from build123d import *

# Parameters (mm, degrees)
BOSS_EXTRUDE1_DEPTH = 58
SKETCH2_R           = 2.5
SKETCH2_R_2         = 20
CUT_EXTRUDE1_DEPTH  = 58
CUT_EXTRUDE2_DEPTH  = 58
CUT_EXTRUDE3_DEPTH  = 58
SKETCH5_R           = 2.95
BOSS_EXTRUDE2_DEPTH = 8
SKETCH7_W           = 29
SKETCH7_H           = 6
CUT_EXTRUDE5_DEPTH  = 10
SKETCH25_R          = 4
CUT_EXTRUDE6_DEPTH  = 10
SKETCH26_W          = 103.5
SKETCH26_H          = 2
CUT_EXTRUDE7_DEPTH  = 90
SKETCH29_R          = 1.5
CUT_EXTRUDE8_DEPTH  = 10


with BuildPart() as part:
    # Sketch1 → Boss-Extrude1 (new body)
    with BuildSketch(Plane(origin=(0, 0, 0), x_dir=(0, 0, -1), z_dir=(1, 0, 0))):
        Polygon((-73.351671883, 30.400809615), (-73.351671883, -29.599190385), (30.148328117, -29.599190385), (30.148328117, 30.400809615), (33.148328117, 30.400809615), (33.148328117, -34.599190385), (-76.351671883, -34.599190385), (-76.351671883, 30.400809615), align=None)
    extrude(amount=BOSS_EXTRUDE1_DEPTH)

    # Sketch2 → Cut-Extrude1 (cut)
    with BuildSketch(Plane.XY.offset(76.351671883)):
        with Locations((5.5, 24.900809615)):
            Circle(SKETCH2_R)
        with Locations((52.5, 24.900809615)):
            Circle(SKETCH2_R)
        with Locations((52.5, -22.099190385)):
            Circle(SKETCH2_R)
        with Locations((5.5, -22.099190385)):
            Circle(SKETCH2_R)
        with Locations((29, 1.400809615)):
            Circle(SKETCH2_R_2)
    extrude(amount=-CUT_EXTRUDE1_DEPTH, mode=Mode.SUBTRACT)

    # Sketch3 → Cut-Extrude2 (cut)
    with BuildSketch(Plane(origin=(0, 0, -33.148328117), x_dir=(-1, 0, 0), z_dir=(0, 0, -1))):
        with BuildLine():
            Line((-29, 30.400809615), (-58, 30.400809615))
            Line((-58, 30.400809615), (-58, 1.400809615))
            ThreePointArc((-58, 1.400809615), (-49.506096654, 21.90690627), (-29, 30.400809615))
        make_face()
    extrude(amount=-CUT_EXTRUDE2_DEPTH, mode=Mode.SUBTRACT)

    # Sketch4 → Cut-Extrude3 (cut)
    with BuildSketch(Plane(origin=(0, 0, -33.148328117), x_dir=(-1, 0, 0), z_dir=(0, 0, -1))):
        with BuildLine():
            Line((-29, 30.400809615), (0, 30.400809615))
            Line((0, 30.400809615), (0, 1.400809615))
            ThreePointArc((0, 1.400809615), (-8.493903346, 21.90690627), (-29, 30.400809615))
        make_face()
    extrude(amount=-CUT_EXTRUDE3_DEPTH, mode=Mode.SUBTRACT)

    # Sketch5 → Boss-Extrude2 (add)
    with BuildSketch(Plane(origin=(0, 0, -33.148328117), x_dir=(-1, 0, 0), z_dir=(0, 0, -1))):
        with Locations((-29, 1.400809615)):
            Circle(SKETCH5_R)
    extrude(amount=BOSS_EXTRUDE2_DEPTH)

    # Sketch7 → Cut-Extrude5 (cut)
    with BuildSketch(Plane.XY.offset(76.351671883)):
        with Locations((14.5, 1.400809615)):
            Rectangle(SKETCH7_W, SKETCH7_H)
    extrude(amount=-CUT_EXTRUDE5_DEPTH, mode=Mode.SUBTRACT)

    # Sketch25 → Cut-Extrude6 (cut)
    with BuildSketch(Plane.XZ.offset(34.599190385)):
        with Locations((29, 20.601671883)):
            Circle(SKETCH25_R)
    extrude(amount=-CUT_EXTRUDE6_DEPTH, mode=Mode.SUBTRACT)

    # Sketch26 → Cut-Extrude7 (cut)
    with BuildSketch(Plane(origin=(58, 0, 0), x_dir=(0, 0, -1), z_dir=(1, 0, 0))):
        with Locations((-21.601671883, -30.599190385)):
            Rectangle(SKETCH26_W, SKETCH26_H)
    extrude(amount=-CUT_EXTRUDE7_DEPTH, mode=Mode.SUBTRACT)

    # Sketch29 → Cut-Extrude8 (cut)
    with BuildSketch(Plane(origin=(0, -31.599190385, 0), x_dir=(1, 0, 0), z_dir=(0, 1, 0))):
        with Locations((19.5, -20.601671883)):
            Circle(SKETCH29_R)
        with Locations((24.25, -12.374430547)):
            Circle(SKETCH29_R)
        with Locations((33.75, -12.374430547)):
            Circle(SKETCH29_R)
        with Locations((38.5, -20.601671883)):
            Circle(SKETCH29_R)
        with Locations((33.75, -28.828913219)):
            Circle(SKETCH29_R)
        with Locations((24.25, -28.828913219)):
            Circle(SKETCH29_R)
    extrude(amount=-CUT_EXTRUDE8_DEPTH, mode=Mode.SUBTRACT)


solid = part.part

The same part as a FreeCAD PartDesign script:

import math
import FreeCAD as App
import Part
import Sketcher
from FreeCAD import Vector
Q = App.Units.Quantity

doc = App.newDocument("Part")
body = doc.addObject("PartDesign::Body", "Body")

# Sketch on YZ plane
sketch1 = body.newObject("Sketcher::SketchObject", "Sketch")
sketch1.AttachmentSupport = (doc.getObject("YZ_Plane"), [""])
sketch1.MapMode = "FlatFace"
sketch1.addGeometry([
    Part.LineSegment(Vector(-29.59919, 73.351672, 0), Vector(30.40081, 73.351672, 0)),  # 0
    Part.LineSegment(Vector(30.40081, 73.351672, 0), Vector(30.40081, 76.351672, 0)),  # 1
    Part.LineSegment(Vector(30.40081, 76.351672, 0), Vector(-34.59919, 76.351672, 0)),  # 2
    Part.LineSegment(Vector(-34.59919, 76.351672, 0), Vector(-34.59919, -33.148328, 0)),  # 3
    Part.LineSegment(Vector(-34.59919, -33.148328, 0), Vector(30.40081, -33.148328, 0)),  # 4
    Part.LineSegment(Vector(30.40081, -33.148328, 0), Vector(30.40081, -30.148328, 0)),  # 5
    Part.LineSegment(Vector(30.40081, -30.148328, 0), Vector(-29.59919, -30.148328, 0)),  # 6
    Part.LineSegment(Vector(-29.59919, -30.148328, 0), Vector(-29.59919, 73.351672, 0)),  # 7
], False)
sketch1.addConstraint([
    Sketcher.Constraint("Coincident", 0, 2, 1, 1),
    Sketcher.Constraint("Coincident", 1, 2, 2, 1),
    Sketcher.Constraint("Coincident", 2, 2, 3, 1),
    Sketcher.Constraint("Coincident", 3, 2, 4, 1),
    Sketcher.Constraint("Coincident", 4, 2, 5, 1),
    Sketcher.Constraint("Coincident", 5, 2, 6, 1),
    Sketcher.Constraint("Coincident", 6, 2, 7, 1),
    Sketcher.Constraint("Coincident", 7, 2, 0, 1),
    Sketcher.Constraint("Horizontal", 0),
    Sketcher.Constraint("Vertical", 1),
    Sketcher.Constraint("Horizontal", 2),
    Sketcher.Constraint("Vertical", 3),
    Sketcher.Constraint("Horizontal", 4),
    Sketcher.Constraint("Vertical", 5),
    Sketcher.Constraint("Horizontal", 6),
    Sketcher.Constraint("Vertical", 7),
    Sketcher.Constraint("Vertical", 1, 2, 4, 2),
    Sketcher.Constraint("Equal", 1, 5),
    Sketcher.Constraint("DistanceX", 0, 1, 0, 2, Q("60 mm")),
    Sketcher.Constraint("DistanceX", 2, 2, 2, 1, Q("65 mm")),
    Sketcher.Constraint("DistanceY", 1, 1, 1, 2, Q("3 mm")),
    Sketcher.Constraint("DistanceY", 3, 2, 3, 1, Q("109.5 mm")),
    Sketcher.Constraint("DistanceX", -1, 1, 0, 2, Q("30.40081 mm")),
    Sketcher.Constraint("DistanceY", -1, 1, 0, 2, Q("73.351672 mm")),
])
pad1 = body.newObject("PartDesign::Pad", "Pad")
pad1.Profile = sketch1
pad1.Length = 58

# Sketch on XY plane
sketch2 = body.newObject("Sketcher::SketchObject", "Sketch001")
sketch2.AttachmentSupport = (doc.getObject("XY_Plane"), [""])
sketch2.MapMode = "FlatFace"
sketch2.AttachmentOffset = App.Placement(Vector(0, 0, 76.351672), App.Rotation())
sketch2.addGeometry([
    Part.Circle(Vector(5.5, 24.90081, 0), Vector(0, 0, 1), 2.5),  # 0
    Part.Circle(Vector(52.5, 24.90081, 0), Vector(0, 0, 1), 2.5),  # 1
    Part.Circle(Vector(52.5, -22.09919, 0), Vector(0, 0, 1), 2.5),  # 2
    Part.Circle(Vector(5.5, -22.09919, 0), Vector(0, 0, 1), 2.5),  # 3
    Part.Circle(Vector(29, 1.40081, 0), Vector(0, 0, 1), 20),  # 4
], False)
sketch2.addConstraint([
    Sketcher.Constraint("Equal", 0, 1),
    Sketcher.Constraint("Equal", 1, 2),
    Sketcher.Constraint("Equal", 2, 3),
    Sketcher.Constraint("Horizontal", 0, 3, 1, 3),
    Sketcher.Constraint("Horizontal", 2, 3, 3, 3),
    Sketcher.Constraint("Vertical", 1, 3, 2, 3),
    Sketcher.Constraint("Vertical", 0, 3, 3, 3),
    Sketcher.Constraint("Diameter", 0, Q("5 mm")),
    Sketcher.Constraint("Diameter", 4, Q("40 mm")),
    Sketcher.Constraint("DistanceX", -1, 1, 4, 3, Q("29 mm")),
    Sketcher.Constraint("DistanceX", 0, 3, 1, 3, Q("47 mm")),
    Sketcher.Constraint("DistanceY", 2, 3, 1, 3, Q("47 mm")),
    Sketcher.Constraint("DistanceX", -1, 1, 0, 3, Q("5.5 mm")),
    Sketcher.Constraint("DistanceY", 4, 3, 0, 3, Q("23.5 mm")),
    Sketcher.Constraint("DistanceY", -1, 1, 0, 3, Q("24.90081 mm")),
])
pocket1 = body.newObject("PartDesign::Pocket", "Pocket")
pocket1.Profile = sketch2
pocket1.Length = 58

# Sketch on XY plane
sketch3 = body.newObject("Sketcher::SketchObject", "Sketch002")
sketch3.AttachmentSupport = (doc.getObject("XY_Plane"), [""])
sketch3.MapMode = "FlatFace"
sketch3.AttachmentOffset = App.Placement(Vector(0, 0, -33.148328), App.Rotation())
sketch3.addGeometry([
    Part.LineSegment(Vector(29, 30.40081, 0), Vector(58, 30.40081, 0)),
    Part.LineSegment(Vector(58, 30.40081, 0), Vector(58, 1.40081, 0)),
    Part.ArcOfCircle(Part.Circle(Vector(29, 1.40081, 0), Vector(0, 0, 1), 29), math.radians(0), math.radians(90)),
], False)
sketch3.addConstraint([
    Sketcher.Constraint("Coincident", 0, 2, 1, 1),
    Sketcher.Constraint("Tangent", 1, 2, 2, 1),
    Sketcher.Constraint("Tangent", 2, 2, 0, 1),
    Sketcher.Constraint("Horizontal", 0),
    Sketcher.Constraint("Vertical", 1),
    Sketcher.Constraint("Radius", 2, Q("29 mm")),
    Sketcher.Constraint("DistanceX", -1, 1, 2, 3, Q("29 mm")),
    Sketcher.Constraint("DistanceY", -1, 1, 2, 3, Q("1.40081 mm")),
])
pocket2 = body.newObject("PartDesign::Pocket", "Pocket001")
pocket2.Profile = sketch3
pocket2.Length = 58
pocket2.Reversed = True

# Sketch on XY plane
sketch4 = body.newObject("Sketcher::SketchObject", "Sketch003")
sketch4.AttachmentSupport = (doc.getObject("XY_Plane"), [""])
sketch4.MapMode = "FlatFace"
sketch4.AttachmentOffset = App.Placement(Vector(0, 0, -33.148328), App.Rotation())
sketch4.addGeometry([
    Part.LineSegment(Vector(0, 30.40081, 0), Vector(29, 30.40081, 0)),
    Part.ArcOfCircle(Part.Circle(Vector(29, 1.40081, 0), Vector(0, 0, 1), 29), math.radians(90), math.radians(180)),
    Part.LineSegment(Vector(0, 1.40081, 0), Vector(0, 30.40081, 0)),
], False)
sketch4.addConstraint([
    Sketcher.Constraint("Tangent", 0, 2, 1, 1),
    Sketcher.Constraint("Tangent", 1, 2, 2, 1),
    Sketcher.Constraint("Coincident", 2, 2, 0, 1),
    Sketcher.Constraint("Horizontal", 0),
    Sketcher.Constraint("Vertical", 2),
    Sketcher.Constraint("PointOnObject", 1, 2, -2),
    Sketcher.Constraint("Radius", 1, Q("29 mm")),
    Sketcher.Constraint("DistanceY", -1, 1, 1, 3, Q("1.40081 mm")),
])
pocket3 = body.newObject("PartDesign::Pocket", "Pocket002")
pocket3.Profile = sketch4
pocket3.Length = 58
pocket3.Reversed = True

# Sketch on XY plane
sketch5 = body.newObject("Sketcher::SketchObject", "Sketch004")
sketch5.AttachmentSupport = (doc.getObject("XY_Plane"), [""])
sketch5.MapMode = "FlatFace"
sketch5.AttachmentOffset = App.Placement(Vector(0, 0, -33.148328), App.Rotation())
sketch5.addGeometry(Part.Circle(Vector(29, 1.40081, 0), Vector(0, 0, 1), 2.95), False)
sketch5.addConstraint([
    Sketcher.Constraint("Diameter", 0, Q("5.9 mm")),
    Sketcher.Constraint("DistanceX", -1, 1, 0, 3, Q("29 mm")),
    Sketcher.Constraint("DistanceY", -1, 1, 0, 3, Q("1.40081 mm")),
])
pad2 = body.newObject("PartDesign::Pad", "Pad001")
pad2.Profile = sketch5
pad2.Length = 8
pad2.Reversed = True

# Sketch on XY plane
sketch6 = body.newObject("Sketcher::SketchObject", "Sketch005")
sketch6.AttachmentSupport = (doc.getObject("XY_Plane"), [""])
sketch6.MapMode = "FlatFace"
sketch6.AttachmentOffset = App.Placement(Vector(0, 0, 76.351672), App.Rotation())
sketch6.addGeometry([
    Part.LineSegment(Vector(0, 4.40081, 0), Vector(0, -1.59919, 0)),
    Part.LineSegment(Vector(0, -1.59919, 0), Vector(29, -1.59919, 0)),
    Part.LineSegment(Vector(29, -1.59919, 0), Vector(29, 4.40081, 0)),
    Part.LineSegment(Vector(29, 4.40081, 0), Vector(0, 4.40081, 0)),
], False)
sketch6.addConstraint([
    Sketcher.Constraint("Coincident", 0, 2, 1, 1),
    Sketcher.Constraint("Coincident", 1, 2, 2, 1),
    Sketcher.Constraint("Coincident", 2, 2, 3, 1),
    Sketcher.Constraint("Coincident", 3, 2, 0, 1),
    Sketcher.Constraint("Vertical", 0),
    Sketcher.Constraint("Horizontal", 1),
    Sketcher.Constraint("Vertical", 2),
    Sketcher.Constraint("Horizontal", 3),
    Sketcher.Constraint("PointOnObject", 0, 2, -2),
    Sketcher.Constraint("DistanceX", 1, 1, 1, 2, Q("29 mm")),
    Sketcher.Constraint("DistanceY", 0, 2, 0, 1, Q("6 mm")),
    Sketcher.Constraint("DistanceY", 0, 2, -1, 1, Q("1.59919 mm")),
])
pocket4 = body.newObject("PartDesign::Pocket", "Pocket003")
pocket4.Profile = sketch6
pocket4.Length = 10

# Sketch on XZ plane
sketch7 = body.newObject("Sketcher::SketchObject", "Sketch006")
sketch7.AttachmentSupport = (doc.getObject("XZ_Plane"), [""])
sketch7.MapMode = "FlatFace"
sketch7.AttachmentOffset = App.Placement(Vector(0, 0, 34.59919), App.Rotation())
sketch7.addGeometry(Part.Circle(Vector(29, 20.601672, 0), Vector(0, 0, 1), 4), False)
sketch7.addConstraint([
    Sketcher.Constraint("Diameter", 0, Q("8 mm")),
    Sketcher.Constraint("DistanceX", -1, 1, 0, 3, Q("29 mm")),
    Sketcher.Constraint("DistanceY", -1, 1, 0, 3, Q("20.601672 mm")),
])
pocket5 = body.newObject("PartDesign::Pocket", "Pocket004")
pocket5.Profile = sketch7
pocket5.Length = 10

# Sketch on YZ plane
sketch8 = body.newObject("Sketcher::SketchObject", "Sketch007")
sketch8.AttachmentSupport = (doc.getObject("YZ_Plane"), [""])
sketch8.MapMode = "FlatFace"
sketch8.AttachmentOffset = App.Placement(Vector(0, 0, 58), App.Rotation())
sketch8.addGeometry([
    Part.LineSegment(Vector(-29.59919, 73.351672, 0), Vector(-31.59919, 73.351672, 0)),
    Part.LineSegment(Vector(-31.59919, 73.351672, 0), Vector(-31.59919, -30.148328, 0)),
    Part.LineSegment(Vector(-31.59919, -30.148328, 0), Vector(-29.59919, -30.148328, 0)),
    Part.LineSegment(Vector(-29.59919, -30.148328, 0), Vector(-29.59919, 73.351672, 0)),
], False)
sketch8.addConstraint([
    Sketcher.Constraint("Coincident", 0, 2, 1, 1),
    Sketcher.Constraint("Coincident", 1, 2, 2, 1),
    Sketcher.Constraint("Coincident", 2, 2, 3, 1),
    Sketcher.Constraint("Coincident", 3, 2, 0, 1),
    Sketcher.Constraint("Horizontal", 0),
    Sketcher.Constraint("Vertical", 1),
    Sketcher.Constraint("Horizontal", 2),
    Sketcher.Constraint("Vertical", 3),
    Sketcher.Constraint("DistanceX", 0, 2, 0, 1, Q("2 mm")),
    Sketcher.Constraint("DistanceY", 1, 2, 1, 1, Q("103.5 mm")),
    Sketcher.Constraint("DistanceX", 0, 2, -1, 1, Q("31.59919 mm")),
    Sketcher.Constraint("DistanceY", -1, 1, 0, 2, Q("73.351672 mm")),
])
pocket6 = body.newObject("PartDesign::Pocket", "Pocket005")
pocket6.Profile = sketch8
pocket6.Length = 90

# Sketch on XZ plane
sketch9 = body.newObject("Sketcher::SketchObject", "Sketch008")
sketch9.AttachmentSupport = (doc.getObject("XZ_Plane"), [""])
sketch9.MapMode = "FlatFace"
sketch9.AttachmentOffset = App.Placement(Vector(0, 0, 31.59919), App.Rotation())
sketch9.addGeometry([
    Part.Circle(Vector(19.5, 20.601672, 0), Vector(0, 0, 1), 1.5),  # 0
    Part.Circle(Vector(24.25, 12.374431, 0), Vector(0, 0, 1), 1.5),  # 1
    Part.Circle(Vector(33.75, 12.374431, 0), Vector(0, 0, 1), 1.5),  # 2
    Part.Circle(Vector(38.5, 20.601672, 0), Vector(0, 0, 1), 1.5),  # 3
    Part.Circle(Vector(33.75, 28.828913, 0), Vector(0, 0, 1), 1.5),  # 4
    Part.Circle(Vector(24.25, 28.828913, 0), Vector(0, 0, 1), 1.5),  # 5
], False)
sketch9.addConstraint([
    Sketcher.Constraint("Equal", 0, 1),
    Sketcher.Constraint("Equal", 1, 2),
    Sketcher.Constraint("Equal", 2, 3),
    Sketcher.Constraint("Equal", 3, 4),
    Sketcher.Constraint("Equal", 4, 5),
    Sketcher.Constraint("Horizontal", 1, 3, 2, 3),
    Sketcher.Constraint("Horizontal", 0, 3, 3, 3),
    Sketcher.Constraint("Horizontal", 4, 3, 5, 3),
    Sketcher.Constraint("Vertical", 2, 3, 4, 3),
    Sketcher.Constraint("Vertical", 1, 3, 5, 3),
    Sketcher.Constraint("Diameter", 0, Q("3 mm")),
    Sketcher.Constraint("DistanceX", 0, 3, 3, 3, Q("19 mm")),
    Sketcher.Constraint("DistanceX", -1, 1, 0, 3, Q("19.5 mm")),
    Sketcher.Constraint("DistanceX", 1, 3, 2, 3, Q("9.5 mm")),
    Sketcher.Constraint("DistanceX", -1, 1, 1, 3, Q("24.25 mm")),
    Sketcher.Constraint("DistanceY", -1, 1, 0, 3, Q("20.601672 mm")),
    Sketcher.Constraint("DistanceY", -1, 1, 1, 3, Q("12.374431 mm")),
    Sketcher.Constraint("DistanceY", 3, 3, 4, 3, Q("8.227241 mm")),
])
pocket7 = body.newObject("PartDesign::Pocket", "Pocket006")
pocket7.Profile = sketch9
pocket7.Length = 10
pocket7.Reversed = True

doc.recompute()
